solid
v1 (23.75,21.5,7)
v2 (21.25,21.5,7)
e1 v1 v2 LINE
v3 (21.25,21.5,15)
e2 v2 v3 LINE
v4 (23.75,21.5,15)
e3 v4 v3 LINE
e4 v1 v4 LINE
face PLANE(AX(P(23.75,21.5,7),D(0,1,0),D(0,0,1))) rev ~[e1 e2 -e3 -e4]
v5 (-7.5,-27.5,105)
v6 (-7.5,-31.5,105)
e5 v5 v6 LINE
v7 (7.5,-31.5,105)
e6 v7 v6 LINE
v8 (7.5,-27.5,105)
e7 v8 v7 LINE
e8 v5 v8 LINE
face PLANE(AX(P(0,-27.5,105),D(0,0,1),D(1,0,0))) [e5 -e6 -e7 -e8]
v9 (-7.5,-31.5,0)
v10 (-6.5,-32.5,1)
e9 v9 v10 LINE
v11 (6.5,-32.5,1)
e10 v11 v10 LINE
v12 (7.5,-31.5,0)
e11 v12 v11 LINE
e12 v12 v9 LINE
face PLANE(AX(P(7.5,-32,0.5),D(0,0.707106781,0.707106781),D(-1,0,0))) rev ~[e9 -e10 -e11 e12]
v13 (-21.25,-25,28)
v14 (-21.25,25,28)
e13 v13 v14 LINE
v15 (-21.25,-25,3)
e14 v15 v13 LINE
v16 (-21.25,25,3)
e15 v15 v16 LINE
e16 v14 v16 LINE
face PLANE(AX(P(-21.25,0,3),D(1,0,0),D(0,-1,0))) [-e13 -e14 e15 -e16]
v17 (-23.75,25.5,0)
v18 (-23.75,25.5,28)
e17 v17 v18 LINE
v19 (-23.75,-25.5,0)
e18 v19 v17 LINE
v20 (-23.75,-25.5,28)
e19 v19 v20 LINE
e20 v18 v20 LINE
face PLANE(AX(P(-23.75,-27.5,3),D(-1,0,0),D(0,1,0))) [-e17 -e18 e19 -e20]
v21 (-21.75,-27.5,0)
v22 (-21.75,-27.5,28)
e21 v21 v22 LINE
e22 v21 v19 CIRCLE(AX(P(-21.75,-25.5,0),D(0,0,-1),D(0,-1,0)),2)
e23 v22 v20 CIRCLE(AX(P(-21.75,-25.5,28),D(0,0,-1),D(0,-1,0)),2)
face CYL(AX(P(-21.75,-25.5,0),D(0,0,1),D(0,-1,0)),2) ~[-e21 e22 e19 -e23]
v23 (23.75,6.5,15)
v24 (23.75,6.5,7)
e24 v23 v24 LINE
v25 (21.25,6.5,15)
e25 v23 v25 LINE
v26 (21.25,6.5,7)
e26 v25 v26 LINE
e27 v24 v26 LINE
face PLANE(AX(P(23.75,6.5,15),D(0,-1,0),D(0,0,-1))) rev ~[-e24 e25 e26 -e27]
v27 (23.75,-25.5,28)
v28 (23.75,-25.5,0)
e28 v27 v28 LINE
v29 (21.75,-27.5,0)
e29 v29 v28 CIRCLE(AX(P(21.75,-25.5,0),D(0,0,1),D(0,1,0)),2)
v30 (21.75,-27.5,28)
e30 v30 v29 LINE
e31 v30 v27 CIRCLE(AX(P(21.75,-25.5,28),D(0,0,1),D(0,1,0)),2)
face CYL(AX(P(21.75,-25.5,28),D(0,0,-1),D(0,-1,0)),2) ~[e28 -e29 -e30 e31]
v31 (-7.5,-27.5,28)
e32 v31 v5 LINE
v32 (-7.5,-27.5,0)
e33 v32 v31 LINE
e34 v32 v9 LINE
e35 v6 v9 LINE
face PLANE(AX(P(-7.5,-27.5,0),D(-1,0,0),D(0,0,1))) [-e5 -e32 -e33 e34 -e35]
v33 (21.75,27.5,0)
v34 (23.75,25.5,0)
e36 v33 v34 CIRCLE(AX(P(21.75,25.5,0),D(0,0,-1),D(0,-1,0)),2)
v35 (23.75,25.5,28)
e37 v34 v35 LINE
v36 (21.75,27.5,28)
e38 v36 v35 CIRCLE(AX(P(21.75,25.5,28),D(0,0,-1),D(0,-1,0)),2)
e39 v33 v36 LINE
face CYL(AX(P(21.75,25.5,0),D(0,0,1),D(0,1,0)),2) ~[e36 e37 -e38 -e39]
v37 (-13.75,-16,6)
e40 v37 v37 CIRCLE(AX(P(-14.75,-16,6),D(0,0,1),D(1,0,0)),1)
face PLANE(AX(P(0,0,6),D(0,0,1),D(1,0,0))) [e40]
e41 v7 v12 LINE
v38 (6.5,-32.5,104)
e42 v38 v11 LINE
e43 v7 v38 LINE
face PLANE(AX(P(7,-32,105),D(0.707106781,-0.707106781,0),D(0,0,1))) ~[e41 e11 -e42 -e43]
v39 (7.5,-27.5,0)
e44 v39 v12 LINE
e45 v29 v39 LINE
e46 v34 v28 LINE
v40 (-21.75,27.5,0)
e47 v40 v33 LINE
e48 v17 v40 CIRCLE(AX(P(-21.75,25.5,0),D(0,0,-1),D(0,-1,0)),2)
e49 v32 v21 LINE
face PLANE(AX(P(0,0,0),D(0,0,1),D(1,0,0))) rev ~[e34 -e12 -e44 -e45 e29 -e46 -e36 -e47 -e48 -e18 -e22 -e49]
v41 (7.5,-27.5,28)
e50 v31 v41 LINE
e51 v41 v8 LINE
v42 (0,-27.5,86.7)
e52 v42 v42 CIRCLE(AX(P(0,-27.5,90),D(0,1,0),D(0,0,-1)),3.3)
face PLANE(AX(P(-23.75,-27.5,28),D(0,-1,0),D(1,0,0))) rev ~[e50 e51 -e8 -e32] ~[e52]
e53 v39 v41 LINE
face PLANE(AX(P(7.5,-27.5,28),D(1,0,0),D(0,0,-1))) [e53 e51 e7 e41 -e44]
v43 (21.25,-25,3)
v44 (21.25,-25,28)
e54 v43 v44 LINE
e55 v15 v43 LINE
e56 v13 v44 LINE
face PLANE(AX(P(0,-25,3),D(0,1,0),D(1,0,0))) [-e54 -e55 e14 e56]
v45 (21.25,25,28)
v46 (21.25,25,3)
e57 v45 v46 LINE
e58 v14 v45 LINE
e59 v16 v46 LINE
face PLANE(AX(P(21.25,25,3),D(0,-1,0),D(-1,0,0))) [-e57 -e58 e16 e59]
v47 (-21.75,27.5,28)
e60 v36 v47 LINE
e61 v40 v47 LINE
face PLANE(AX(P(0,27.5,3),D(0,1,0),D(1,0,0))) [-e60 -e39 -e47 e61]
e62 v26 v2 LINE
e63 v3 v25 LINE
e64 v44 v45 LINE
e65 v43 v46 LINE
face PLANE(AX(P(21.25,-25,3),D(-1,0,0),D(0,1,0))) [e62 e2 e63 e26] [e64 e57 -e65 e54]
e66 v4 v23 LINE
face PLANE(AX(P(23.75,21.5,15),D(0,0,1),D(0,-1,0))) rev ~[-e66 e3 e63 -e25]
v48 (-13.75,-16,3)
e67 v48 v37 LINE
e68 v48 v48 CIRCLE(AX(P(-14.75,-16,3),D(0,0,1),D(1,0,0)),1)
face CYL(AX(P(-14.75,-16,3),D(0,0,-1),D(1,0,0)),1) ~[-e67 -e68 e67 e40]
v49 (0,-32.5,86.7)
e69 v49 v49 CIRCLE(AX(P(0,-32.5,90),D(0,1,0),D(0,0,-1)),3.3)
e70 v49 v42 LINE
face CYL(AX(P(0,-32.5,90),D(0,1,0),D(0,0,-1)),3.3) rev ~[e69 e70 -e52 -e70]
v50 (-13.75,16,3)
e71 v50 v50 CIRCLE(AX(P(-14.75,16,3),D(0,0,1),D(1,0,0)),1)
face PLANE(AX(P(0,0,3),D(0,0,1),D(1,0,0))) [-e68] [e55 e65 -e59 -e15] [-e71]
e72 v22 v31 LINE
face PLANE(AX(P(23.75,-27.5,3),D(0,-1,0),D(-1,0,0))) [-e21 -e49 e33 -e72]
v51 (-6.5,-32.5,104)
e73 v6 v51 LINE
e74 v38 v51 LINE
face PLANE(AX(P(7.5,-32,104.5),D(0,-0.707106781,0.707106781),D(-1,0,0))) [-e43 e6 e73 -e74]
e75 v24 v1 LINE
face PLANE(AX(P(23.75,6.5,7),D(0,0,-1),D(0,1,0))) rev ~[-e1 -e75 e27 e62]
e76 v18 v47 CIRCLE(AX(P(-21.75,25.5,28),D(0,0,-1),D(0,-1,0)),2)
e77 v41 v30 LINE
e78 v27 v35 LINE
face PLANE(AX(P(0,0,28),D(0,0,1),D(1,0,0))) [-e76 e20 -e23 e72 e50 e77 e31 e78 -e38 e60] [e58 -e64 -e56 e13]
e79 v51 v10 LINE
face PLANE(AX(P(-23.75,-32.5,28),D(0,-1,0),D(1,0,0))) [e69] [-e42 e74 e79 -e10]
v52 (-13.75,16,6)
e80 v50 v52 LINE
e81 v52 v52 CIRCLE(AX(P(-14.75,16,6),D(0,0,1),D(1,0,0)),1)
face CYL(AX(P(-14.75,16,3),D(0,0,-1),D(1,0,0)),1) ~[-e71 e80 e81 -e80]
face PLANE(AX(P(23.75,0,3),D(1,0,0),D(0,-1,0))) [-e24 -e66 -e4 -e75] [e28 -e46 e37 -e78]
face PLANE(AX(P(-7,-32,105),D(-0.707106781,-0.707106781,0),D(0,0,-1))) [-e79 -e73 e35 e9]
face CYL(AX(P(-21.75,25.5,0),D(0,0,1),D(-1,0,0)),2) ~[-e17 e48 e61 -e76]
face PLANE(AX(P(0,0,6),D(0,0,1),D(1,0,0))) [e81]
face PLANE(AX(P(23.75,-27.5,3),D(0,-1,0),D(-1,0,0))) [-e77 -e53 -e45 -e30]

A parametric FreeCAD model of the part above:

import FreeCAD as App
import Part
import Sketcher


def edges_at(feature, points):
    """Names of the edges that pass closest to the given points."""
    edges = feature.Shape.Edges
    near = lambda p: min(range(len(edges)), key=lambda i: edges[i].distToShape(Part.Vertex(*p))[0])
    return sorted({f"Edge{near(p) + 1}" for p in points})


def add_polygon(sketch, points):
    """Adds a closed chain of lines whose ends are joined by coincident constraints."""
    first, n = sketch.GeometryCount, len(points)
    for a, b in zip(points, points[1:] + points[:1]):
        sketch.addGeometry(Part.LineSegment(App.Vector(*a, 0), App.Vector(*b, 0)), False)
    for i in range(n):
        sketch.addConstraint(Sketcher.Constraint("Coincident", first + i, 2, first + (i + 1) % n, 1))

doc = App.newDocument("Part")
body = doc.addObject("PartDesign::Body", "Body")

# Sketch on XY plane
sketch1 = body.newObject("Sketcher::SketchObject", "Sketch")
sketch1.AttachmentSupport = (doc.getObject("XY_Plane"), [""])
sketch1.MapMode = "FlatFace"
add_polygon(sketch1, [(-21, 25), (-21, -25), (21, -25), (21, 25)])  # lines 0-3
sketch1.addConstraint(Sketcher.Constraint("Vertical", 0))
sketch1.addConstraint(Sketcher.Constraint("Horizontal", 1))
sketch1.addConstraint(Sketcher.Constraint("Vertical", 2))
sketch1.addConstraint(Sketcher.Constraint("Horizontal", 3))
sketch1.addConstraint(Sketcher.Constraint("Symmetric", 0, 2, 2, 2, -1, 1))
sketch1.addConstraint(Sketcher.Constraint("DistanceY", 0, 2, 0, 1, 50.0))
sketch1.addConstraint(Sketcher.Constraint("DistanceX", 1, 1, 1, 2, 42.5))
pad1 = body.newObject("PartDesign::Pad", "Pad")
pad1.Profile = sketch1
pad1.Length = 3

# Sketch on XY plane
sketch2 = body.newObject("Sketcher::SketchObject", "Sketch001")
sketch2.AttachmentSupport = (doc.getObject("XY_Plane"), [""])
sketch2.MapMode = "FlatFace"
sketch2.AttachmentOffset = App.Placement(App.Vector(0, 0, 3), App.Rotation())
sketch2.addGeometry(Part.Circle(App.Vector(-14.8, 16, 0), App.Vector(0, 0, 1), 1), False)
sketch2.addGeometry(Part.Circle(App.Vector(-14.8, -16, 0), App.Vector(0, 0, 1), 1), False)
sketch2.addConstraint(Sketcher.Constraint("Equal", 0, 1))
sketch2.addConstraint(Sketcher.Constraint("Symmetric", 0, 3, 1, 3, -1))
sketch2.addConstraint(Sketcher.Constraint("Diameter", 0, 2.0))
sketch2.addConstraint(Sketcher.Constraint("DistanceY", -1, 1, 0, 3, 16.0))
sketch2.addConstraint(Sketcher.Constraint("DistanceX", 0, 3, -1, 1, 14.75))
pad2 = body.newObject("PartDesign::Pad", "Pad001")
pad2.Profile = sketch2
pad2.Length = 3

# Sketch on XY plane
sketch3 = body.newObject("Sketcher::SketchObject", "Sketch002")
sketch3.AttachmentSupport = (doc.getObject("XY_Plane"), [""])
sketch3.MapMode = "FlatFace"
sketch3.AttachmentOffset = App.Placement(App.Vector(0, 0, 3), App.Rotation())
add_polygon(sketch3, [(24, -28), (24, 28), (-24, 28), (-24, -28)])  # lines 0-3
add_polygon(sketch3, [(21, -25), (-21, -25), (-21, 25), (21, 25)])  # lines 4-7
sketch3.addConstraint(Sketcher.Constraint("Vertical", 0))
sketch3.addConstraint(Sketcher.Constraint("Horizontal", 1))
sketch3.addConstraint(Sketcher.Constraint("Vertical", 2))
sketch3.addConstraint(Sketcher.Constraint("Horizontal", 3))
sketch3.addConstraint(Sketcher.Constraint("Horizontal", 4))
sketch3.addConstraint(Sketcher.Constraint("Vertical", 5))
sketch3.addConstraint(Sketcher.Constraint("Horizontal", 6))
sketch3.addConstraint(Sketcher.Constraint("Vertical", 7))
sketch3.addConstraint(Sketcher.Constraint("Symmetric", 0, 2, 2, 2, -1, 1))
sketch3.addConstraint(Sketcher.Constraint("Symmetric", 4, 2, 6, 2, -1, 1))
sketch3.addConstraint(Sketcher.Constraint("DistanceX", 2, 2, 4, 2, 2.5))
sketch3.addConstraint(Sketcher.Constraint("DistanceY", 2, 2, 4, 2, 2.5))
sketch3.addConstraint(Sketcher.Constraint("DistanceY", 0, 1, 0, 2, 55.0))
sketch3.addConstraint(Sketcher.Constraint("DistanceX", 1, 2, 1, 1, 47.5))
pad3 = body.newObject("PartDesign::Pad", "Pad002")
pad3.Profile = sketch3
pad3.Type = "TwoLengths"
pad3.Length = 25
pad3.Length2 = 3

# Sketch on YZ plane
sketch4 = body.newObject("Sketcher::SketchObject", "Sketch003")
sketch4.AttachmentSupport = (doc.getObject("YZ_Plane"), [""])
sketch4.MapMode = "FlatFace"
sketch4.AttachmentOffset = App.Placement(App.Vector(0, 0, 23.75), App.Rotation())
add_polygon(sketch4, [(22, 15), (6, 15), (6, 7), (22, 7)])  # lines 0-3
sketch4.addConstraint(Sketcher.Constraint("Horizontal", 0))
sketch4.addConstraint(Sketcher.Constraint("Vertical", 1))
sketch4.addConstraint(Sketcher.Constraint("Horizontal", 2))
sketch4.addConstraint(Sketcher.Constraint("Vertical", 3))
sketch4.addConstraint(Sketcher.Constraint("DistanceX", 0, 2, 0, 1, 15.0))
sketch4.addConstraint(Sketcher.Constraint("DistanceY", 1, 2, 1, 1, 8.0))
sketch4.addConstraint(Sketcher.Constraint("DistanceY", -1, 1, 0, 2, 15.0))
sketch4.addConstraint(Sketcher.Constraint("DistanceX", -1, 1, 0, 2, 6.5))
pocket1 = body.newObject("PartDesign::Pocket", "Pocket")
pocket1.Profile = sketch4
pocket1.Length = 2.5

# Sketch on XZ plane
sketch5 = body.newObject("Sketcher::SketchObject", "Sketch004")
sketch5.AttachmentSupport = (doc.getObject("XZ_Plane"), [""])
sketch5.MapMode = "FlatFace"
sketch5.AttachmentOffset = App.Placement(App.Vector(0, 0, 27.5), App.Rotation())
add_polygon(sketch5, [(8, 0), (8, 105), (-8, 105), (-8, 0)])  # lines 0-3
sketch5.addConstraint(Sketcher.Constraint("Vertical", 0))
sketch5.addConstraint(Sketcher.Constraint("Horizontal", 1))
sketch5.addConstraint(Sketcher.Constraint("Vertical", 2))
sketch5.addConstraint(Sketcher.Constraint("Horizontal", 3))
sketch5.addConstraint(Sketcher.Constraint("Symmetric", 2, 2, 3, 2, -1, 1))
sketch5.addConstraint(Sketcher.Constraint("DistanceX", 1, 2, 1, 1, 15.0))
sketch5.addConstraint(Sketcher.Constraint("DistanceY", 0, 1, 0, 2, 105.0))
pad4 = body.newObject("PartDesign::Pad", "Pad003")
pad4.Profile = sketch5
pad4.Length = 5

# Sketch on XZ plane
sketch6 = body.newObject("Sketcher::SketchObject", "Sketch005")
sketch6.AttachmentSupport = (doc.getObject("XZ_Plane"), [""])
sketch6.MapMode = "FlatFace"
sketch6.AttachmentOffset = App.Placement(App.Vector(0, 0, 32.5), App.Rotation())
sketch6.addGeometry(Part.Circle(App.Vector(0, 90, 0), App.Vector(0, 0, 1), 3.3), False)
sketch6.addConstraint(Sketcher.Constraint("PointOnObject", 0, 3, -2))
sketch6.addConstraint(Sketcher.Constraint("Diameter", 0, 6.6))
sketch6.addConstraint(Sketcher.Constraint("DistanceY", -1, 1, 0, 3, 90.0))
doc.recompute()
hole = body.newObject("PartDesign::Hole", "Hole")
hole.Profile = sketch6
hole.ThreadType = "None"
hole.Diameter = 6.6
hole.DepthType = "ThroughAll"
doc.recompute()

chamfer = body.newObject("PartDesign::Chamfer", "Chamfer")
chamfer.Base = (hole, edges_at(hole, [
    (-7.5, -32.5, 52.5),
    (7.5, -32.5, 52.5),
    (0, -32.5, 105),
    (0, -32.5, 0),
]))
chamfer.Size = 1
doc.recompute()

fillet = body.newObject("PartDesign::Fillet", "Fillet")
fillet.Base = (chamfer, edges_at(chamfer, [
    (-23.75, -27.5, 14),
    (23.75, -27.5, 14),
    (23.75, 27.5, 14),
    (-23.75, 27.5, 14),
]))
fillet.Radius = 2

doc.recompute()
